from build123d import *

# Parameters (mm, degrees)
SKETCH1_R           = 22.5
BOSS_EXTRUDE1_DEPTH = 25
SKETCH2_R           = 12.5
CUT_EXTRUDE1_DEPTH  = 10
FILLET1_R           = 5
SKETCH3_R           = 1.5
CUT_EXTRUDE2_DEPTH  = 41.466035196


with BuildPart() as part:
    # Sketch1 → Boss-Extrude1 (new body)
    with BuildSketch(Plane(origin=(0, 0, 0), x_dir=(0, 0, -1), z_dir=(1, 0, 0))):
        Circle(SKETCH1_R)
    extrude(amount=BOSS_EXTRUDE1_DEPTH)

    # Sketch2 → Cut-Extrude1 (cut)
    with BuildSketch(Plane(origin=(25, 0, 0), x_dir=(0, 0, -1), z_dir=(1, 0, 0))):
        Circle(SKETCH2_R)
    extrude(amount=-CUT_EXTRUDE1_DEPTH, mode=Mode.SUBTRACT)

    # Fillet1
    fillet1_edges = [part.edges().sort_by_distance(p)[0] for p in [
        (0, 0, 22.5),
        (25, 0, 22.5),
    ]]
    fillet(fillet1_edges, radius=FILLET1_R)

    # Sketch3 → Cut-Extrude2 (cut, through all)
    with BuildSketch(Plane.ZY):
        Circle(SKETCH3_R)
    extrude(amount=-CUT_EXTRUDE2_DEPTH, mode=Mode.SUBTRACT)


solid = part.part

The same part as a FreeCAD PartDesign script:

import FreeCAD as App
import Part
import Sketcher

V = App.Vector
Q = App.Units.Quantity


def edges_at(feature, points):
    """Names of the edges that pass closest to the given points."""
    edges = feature.Shape.Edges
    near = lambda p: min(range(len(edges)), key=lambda i: edges[i].distToShape(Part.Vertex(*p))[0])
    return sorted({f"Edge{near(p) + 1}" for p in points})

doc = App.newDocument("Part")
body = doc.addObject("PartDesign::Body", "Body")

sketch1 = body.newObject("Sketcher::SketchObject", "Sketch")
sketch1.AttachmentSupport = (doc.getObject("YZ_Plane"), [""])
sketch1.MapMode = "FlatFace"
sketch1.addGeometry(Part.Circle(V(0, 0, 0), V(0, 0, 1), 22), False)
sketch1.addConstraint(Sketcher.Constraint("Coincident", 0, 3, -1, 1))
sketch1.addConstraint(Sketcher.Constraint("Diameter", 0, Q("45 mm")))
pad1 = body.newObject("PartDesign::Pad", "Pad")
pad1.Profile = sketch1
pad1.Length = 25

sketch2 = body.newObject("Sketcher::SketchObject", "Sketch001")
sketch2.AttachmentSupport = (doc.getObject("YZ_Plane"), [""])
sketch2.MapMode = "FlatFace"
sketch2.AttachmentOffset = App.Placement(V(0, 0, 25), App.Rotation())
sketch2.addGeometry(Part.Circle(V(0, 0, 0), V(0, 0, 1), 12), False)
sketch2.addConstraint(Sketcher.Constraint("Coincident", 0, 3, -1, 1))
sketch2.addConstraint(Sketcher.Constraint("Diameter", 0, Q("25 mm")))
pocket1 = body.newObject("PartDesign::Pocket", "Pocket")
pocket1.Profile = sketch2
pocket1.Length = 10
doc.recompute()

fillet = body.newObject("PartDesign::Fillet", "Fillet")
fillet.Base = (pocket1, edges_at(pocket1, [(0, 0, 22.5), (25, 0, 22.5)]))
fillet.Radius = 5

sketch3 = body.newObject("Sketcher::SketchObject", "Sketch002")
sketch3.AttachmentSupport = (doc.getObject("YZ_Plane"), [""])
sketch3.MapMode = "FlatFace"
sketch3.addGeometry(Part.Circle(V(0, 0, 0), V(0, 0, 1), 1.5), False)
sketch3.addConstraint(Sketcher.Constraint("Coincident", 0, 3, -1, 1))
sketch3.addConstraint(Sketcher.Constraint("Diameter", 0, Q("3 mm")))
pocket2 = body.newObject("PartDesign::Pocket", "Pocket001")
pocket2.Profile = sketch3
pocket2.Type = "ThroughAll"
pocket2.Reversed = True

doc.recompute()
